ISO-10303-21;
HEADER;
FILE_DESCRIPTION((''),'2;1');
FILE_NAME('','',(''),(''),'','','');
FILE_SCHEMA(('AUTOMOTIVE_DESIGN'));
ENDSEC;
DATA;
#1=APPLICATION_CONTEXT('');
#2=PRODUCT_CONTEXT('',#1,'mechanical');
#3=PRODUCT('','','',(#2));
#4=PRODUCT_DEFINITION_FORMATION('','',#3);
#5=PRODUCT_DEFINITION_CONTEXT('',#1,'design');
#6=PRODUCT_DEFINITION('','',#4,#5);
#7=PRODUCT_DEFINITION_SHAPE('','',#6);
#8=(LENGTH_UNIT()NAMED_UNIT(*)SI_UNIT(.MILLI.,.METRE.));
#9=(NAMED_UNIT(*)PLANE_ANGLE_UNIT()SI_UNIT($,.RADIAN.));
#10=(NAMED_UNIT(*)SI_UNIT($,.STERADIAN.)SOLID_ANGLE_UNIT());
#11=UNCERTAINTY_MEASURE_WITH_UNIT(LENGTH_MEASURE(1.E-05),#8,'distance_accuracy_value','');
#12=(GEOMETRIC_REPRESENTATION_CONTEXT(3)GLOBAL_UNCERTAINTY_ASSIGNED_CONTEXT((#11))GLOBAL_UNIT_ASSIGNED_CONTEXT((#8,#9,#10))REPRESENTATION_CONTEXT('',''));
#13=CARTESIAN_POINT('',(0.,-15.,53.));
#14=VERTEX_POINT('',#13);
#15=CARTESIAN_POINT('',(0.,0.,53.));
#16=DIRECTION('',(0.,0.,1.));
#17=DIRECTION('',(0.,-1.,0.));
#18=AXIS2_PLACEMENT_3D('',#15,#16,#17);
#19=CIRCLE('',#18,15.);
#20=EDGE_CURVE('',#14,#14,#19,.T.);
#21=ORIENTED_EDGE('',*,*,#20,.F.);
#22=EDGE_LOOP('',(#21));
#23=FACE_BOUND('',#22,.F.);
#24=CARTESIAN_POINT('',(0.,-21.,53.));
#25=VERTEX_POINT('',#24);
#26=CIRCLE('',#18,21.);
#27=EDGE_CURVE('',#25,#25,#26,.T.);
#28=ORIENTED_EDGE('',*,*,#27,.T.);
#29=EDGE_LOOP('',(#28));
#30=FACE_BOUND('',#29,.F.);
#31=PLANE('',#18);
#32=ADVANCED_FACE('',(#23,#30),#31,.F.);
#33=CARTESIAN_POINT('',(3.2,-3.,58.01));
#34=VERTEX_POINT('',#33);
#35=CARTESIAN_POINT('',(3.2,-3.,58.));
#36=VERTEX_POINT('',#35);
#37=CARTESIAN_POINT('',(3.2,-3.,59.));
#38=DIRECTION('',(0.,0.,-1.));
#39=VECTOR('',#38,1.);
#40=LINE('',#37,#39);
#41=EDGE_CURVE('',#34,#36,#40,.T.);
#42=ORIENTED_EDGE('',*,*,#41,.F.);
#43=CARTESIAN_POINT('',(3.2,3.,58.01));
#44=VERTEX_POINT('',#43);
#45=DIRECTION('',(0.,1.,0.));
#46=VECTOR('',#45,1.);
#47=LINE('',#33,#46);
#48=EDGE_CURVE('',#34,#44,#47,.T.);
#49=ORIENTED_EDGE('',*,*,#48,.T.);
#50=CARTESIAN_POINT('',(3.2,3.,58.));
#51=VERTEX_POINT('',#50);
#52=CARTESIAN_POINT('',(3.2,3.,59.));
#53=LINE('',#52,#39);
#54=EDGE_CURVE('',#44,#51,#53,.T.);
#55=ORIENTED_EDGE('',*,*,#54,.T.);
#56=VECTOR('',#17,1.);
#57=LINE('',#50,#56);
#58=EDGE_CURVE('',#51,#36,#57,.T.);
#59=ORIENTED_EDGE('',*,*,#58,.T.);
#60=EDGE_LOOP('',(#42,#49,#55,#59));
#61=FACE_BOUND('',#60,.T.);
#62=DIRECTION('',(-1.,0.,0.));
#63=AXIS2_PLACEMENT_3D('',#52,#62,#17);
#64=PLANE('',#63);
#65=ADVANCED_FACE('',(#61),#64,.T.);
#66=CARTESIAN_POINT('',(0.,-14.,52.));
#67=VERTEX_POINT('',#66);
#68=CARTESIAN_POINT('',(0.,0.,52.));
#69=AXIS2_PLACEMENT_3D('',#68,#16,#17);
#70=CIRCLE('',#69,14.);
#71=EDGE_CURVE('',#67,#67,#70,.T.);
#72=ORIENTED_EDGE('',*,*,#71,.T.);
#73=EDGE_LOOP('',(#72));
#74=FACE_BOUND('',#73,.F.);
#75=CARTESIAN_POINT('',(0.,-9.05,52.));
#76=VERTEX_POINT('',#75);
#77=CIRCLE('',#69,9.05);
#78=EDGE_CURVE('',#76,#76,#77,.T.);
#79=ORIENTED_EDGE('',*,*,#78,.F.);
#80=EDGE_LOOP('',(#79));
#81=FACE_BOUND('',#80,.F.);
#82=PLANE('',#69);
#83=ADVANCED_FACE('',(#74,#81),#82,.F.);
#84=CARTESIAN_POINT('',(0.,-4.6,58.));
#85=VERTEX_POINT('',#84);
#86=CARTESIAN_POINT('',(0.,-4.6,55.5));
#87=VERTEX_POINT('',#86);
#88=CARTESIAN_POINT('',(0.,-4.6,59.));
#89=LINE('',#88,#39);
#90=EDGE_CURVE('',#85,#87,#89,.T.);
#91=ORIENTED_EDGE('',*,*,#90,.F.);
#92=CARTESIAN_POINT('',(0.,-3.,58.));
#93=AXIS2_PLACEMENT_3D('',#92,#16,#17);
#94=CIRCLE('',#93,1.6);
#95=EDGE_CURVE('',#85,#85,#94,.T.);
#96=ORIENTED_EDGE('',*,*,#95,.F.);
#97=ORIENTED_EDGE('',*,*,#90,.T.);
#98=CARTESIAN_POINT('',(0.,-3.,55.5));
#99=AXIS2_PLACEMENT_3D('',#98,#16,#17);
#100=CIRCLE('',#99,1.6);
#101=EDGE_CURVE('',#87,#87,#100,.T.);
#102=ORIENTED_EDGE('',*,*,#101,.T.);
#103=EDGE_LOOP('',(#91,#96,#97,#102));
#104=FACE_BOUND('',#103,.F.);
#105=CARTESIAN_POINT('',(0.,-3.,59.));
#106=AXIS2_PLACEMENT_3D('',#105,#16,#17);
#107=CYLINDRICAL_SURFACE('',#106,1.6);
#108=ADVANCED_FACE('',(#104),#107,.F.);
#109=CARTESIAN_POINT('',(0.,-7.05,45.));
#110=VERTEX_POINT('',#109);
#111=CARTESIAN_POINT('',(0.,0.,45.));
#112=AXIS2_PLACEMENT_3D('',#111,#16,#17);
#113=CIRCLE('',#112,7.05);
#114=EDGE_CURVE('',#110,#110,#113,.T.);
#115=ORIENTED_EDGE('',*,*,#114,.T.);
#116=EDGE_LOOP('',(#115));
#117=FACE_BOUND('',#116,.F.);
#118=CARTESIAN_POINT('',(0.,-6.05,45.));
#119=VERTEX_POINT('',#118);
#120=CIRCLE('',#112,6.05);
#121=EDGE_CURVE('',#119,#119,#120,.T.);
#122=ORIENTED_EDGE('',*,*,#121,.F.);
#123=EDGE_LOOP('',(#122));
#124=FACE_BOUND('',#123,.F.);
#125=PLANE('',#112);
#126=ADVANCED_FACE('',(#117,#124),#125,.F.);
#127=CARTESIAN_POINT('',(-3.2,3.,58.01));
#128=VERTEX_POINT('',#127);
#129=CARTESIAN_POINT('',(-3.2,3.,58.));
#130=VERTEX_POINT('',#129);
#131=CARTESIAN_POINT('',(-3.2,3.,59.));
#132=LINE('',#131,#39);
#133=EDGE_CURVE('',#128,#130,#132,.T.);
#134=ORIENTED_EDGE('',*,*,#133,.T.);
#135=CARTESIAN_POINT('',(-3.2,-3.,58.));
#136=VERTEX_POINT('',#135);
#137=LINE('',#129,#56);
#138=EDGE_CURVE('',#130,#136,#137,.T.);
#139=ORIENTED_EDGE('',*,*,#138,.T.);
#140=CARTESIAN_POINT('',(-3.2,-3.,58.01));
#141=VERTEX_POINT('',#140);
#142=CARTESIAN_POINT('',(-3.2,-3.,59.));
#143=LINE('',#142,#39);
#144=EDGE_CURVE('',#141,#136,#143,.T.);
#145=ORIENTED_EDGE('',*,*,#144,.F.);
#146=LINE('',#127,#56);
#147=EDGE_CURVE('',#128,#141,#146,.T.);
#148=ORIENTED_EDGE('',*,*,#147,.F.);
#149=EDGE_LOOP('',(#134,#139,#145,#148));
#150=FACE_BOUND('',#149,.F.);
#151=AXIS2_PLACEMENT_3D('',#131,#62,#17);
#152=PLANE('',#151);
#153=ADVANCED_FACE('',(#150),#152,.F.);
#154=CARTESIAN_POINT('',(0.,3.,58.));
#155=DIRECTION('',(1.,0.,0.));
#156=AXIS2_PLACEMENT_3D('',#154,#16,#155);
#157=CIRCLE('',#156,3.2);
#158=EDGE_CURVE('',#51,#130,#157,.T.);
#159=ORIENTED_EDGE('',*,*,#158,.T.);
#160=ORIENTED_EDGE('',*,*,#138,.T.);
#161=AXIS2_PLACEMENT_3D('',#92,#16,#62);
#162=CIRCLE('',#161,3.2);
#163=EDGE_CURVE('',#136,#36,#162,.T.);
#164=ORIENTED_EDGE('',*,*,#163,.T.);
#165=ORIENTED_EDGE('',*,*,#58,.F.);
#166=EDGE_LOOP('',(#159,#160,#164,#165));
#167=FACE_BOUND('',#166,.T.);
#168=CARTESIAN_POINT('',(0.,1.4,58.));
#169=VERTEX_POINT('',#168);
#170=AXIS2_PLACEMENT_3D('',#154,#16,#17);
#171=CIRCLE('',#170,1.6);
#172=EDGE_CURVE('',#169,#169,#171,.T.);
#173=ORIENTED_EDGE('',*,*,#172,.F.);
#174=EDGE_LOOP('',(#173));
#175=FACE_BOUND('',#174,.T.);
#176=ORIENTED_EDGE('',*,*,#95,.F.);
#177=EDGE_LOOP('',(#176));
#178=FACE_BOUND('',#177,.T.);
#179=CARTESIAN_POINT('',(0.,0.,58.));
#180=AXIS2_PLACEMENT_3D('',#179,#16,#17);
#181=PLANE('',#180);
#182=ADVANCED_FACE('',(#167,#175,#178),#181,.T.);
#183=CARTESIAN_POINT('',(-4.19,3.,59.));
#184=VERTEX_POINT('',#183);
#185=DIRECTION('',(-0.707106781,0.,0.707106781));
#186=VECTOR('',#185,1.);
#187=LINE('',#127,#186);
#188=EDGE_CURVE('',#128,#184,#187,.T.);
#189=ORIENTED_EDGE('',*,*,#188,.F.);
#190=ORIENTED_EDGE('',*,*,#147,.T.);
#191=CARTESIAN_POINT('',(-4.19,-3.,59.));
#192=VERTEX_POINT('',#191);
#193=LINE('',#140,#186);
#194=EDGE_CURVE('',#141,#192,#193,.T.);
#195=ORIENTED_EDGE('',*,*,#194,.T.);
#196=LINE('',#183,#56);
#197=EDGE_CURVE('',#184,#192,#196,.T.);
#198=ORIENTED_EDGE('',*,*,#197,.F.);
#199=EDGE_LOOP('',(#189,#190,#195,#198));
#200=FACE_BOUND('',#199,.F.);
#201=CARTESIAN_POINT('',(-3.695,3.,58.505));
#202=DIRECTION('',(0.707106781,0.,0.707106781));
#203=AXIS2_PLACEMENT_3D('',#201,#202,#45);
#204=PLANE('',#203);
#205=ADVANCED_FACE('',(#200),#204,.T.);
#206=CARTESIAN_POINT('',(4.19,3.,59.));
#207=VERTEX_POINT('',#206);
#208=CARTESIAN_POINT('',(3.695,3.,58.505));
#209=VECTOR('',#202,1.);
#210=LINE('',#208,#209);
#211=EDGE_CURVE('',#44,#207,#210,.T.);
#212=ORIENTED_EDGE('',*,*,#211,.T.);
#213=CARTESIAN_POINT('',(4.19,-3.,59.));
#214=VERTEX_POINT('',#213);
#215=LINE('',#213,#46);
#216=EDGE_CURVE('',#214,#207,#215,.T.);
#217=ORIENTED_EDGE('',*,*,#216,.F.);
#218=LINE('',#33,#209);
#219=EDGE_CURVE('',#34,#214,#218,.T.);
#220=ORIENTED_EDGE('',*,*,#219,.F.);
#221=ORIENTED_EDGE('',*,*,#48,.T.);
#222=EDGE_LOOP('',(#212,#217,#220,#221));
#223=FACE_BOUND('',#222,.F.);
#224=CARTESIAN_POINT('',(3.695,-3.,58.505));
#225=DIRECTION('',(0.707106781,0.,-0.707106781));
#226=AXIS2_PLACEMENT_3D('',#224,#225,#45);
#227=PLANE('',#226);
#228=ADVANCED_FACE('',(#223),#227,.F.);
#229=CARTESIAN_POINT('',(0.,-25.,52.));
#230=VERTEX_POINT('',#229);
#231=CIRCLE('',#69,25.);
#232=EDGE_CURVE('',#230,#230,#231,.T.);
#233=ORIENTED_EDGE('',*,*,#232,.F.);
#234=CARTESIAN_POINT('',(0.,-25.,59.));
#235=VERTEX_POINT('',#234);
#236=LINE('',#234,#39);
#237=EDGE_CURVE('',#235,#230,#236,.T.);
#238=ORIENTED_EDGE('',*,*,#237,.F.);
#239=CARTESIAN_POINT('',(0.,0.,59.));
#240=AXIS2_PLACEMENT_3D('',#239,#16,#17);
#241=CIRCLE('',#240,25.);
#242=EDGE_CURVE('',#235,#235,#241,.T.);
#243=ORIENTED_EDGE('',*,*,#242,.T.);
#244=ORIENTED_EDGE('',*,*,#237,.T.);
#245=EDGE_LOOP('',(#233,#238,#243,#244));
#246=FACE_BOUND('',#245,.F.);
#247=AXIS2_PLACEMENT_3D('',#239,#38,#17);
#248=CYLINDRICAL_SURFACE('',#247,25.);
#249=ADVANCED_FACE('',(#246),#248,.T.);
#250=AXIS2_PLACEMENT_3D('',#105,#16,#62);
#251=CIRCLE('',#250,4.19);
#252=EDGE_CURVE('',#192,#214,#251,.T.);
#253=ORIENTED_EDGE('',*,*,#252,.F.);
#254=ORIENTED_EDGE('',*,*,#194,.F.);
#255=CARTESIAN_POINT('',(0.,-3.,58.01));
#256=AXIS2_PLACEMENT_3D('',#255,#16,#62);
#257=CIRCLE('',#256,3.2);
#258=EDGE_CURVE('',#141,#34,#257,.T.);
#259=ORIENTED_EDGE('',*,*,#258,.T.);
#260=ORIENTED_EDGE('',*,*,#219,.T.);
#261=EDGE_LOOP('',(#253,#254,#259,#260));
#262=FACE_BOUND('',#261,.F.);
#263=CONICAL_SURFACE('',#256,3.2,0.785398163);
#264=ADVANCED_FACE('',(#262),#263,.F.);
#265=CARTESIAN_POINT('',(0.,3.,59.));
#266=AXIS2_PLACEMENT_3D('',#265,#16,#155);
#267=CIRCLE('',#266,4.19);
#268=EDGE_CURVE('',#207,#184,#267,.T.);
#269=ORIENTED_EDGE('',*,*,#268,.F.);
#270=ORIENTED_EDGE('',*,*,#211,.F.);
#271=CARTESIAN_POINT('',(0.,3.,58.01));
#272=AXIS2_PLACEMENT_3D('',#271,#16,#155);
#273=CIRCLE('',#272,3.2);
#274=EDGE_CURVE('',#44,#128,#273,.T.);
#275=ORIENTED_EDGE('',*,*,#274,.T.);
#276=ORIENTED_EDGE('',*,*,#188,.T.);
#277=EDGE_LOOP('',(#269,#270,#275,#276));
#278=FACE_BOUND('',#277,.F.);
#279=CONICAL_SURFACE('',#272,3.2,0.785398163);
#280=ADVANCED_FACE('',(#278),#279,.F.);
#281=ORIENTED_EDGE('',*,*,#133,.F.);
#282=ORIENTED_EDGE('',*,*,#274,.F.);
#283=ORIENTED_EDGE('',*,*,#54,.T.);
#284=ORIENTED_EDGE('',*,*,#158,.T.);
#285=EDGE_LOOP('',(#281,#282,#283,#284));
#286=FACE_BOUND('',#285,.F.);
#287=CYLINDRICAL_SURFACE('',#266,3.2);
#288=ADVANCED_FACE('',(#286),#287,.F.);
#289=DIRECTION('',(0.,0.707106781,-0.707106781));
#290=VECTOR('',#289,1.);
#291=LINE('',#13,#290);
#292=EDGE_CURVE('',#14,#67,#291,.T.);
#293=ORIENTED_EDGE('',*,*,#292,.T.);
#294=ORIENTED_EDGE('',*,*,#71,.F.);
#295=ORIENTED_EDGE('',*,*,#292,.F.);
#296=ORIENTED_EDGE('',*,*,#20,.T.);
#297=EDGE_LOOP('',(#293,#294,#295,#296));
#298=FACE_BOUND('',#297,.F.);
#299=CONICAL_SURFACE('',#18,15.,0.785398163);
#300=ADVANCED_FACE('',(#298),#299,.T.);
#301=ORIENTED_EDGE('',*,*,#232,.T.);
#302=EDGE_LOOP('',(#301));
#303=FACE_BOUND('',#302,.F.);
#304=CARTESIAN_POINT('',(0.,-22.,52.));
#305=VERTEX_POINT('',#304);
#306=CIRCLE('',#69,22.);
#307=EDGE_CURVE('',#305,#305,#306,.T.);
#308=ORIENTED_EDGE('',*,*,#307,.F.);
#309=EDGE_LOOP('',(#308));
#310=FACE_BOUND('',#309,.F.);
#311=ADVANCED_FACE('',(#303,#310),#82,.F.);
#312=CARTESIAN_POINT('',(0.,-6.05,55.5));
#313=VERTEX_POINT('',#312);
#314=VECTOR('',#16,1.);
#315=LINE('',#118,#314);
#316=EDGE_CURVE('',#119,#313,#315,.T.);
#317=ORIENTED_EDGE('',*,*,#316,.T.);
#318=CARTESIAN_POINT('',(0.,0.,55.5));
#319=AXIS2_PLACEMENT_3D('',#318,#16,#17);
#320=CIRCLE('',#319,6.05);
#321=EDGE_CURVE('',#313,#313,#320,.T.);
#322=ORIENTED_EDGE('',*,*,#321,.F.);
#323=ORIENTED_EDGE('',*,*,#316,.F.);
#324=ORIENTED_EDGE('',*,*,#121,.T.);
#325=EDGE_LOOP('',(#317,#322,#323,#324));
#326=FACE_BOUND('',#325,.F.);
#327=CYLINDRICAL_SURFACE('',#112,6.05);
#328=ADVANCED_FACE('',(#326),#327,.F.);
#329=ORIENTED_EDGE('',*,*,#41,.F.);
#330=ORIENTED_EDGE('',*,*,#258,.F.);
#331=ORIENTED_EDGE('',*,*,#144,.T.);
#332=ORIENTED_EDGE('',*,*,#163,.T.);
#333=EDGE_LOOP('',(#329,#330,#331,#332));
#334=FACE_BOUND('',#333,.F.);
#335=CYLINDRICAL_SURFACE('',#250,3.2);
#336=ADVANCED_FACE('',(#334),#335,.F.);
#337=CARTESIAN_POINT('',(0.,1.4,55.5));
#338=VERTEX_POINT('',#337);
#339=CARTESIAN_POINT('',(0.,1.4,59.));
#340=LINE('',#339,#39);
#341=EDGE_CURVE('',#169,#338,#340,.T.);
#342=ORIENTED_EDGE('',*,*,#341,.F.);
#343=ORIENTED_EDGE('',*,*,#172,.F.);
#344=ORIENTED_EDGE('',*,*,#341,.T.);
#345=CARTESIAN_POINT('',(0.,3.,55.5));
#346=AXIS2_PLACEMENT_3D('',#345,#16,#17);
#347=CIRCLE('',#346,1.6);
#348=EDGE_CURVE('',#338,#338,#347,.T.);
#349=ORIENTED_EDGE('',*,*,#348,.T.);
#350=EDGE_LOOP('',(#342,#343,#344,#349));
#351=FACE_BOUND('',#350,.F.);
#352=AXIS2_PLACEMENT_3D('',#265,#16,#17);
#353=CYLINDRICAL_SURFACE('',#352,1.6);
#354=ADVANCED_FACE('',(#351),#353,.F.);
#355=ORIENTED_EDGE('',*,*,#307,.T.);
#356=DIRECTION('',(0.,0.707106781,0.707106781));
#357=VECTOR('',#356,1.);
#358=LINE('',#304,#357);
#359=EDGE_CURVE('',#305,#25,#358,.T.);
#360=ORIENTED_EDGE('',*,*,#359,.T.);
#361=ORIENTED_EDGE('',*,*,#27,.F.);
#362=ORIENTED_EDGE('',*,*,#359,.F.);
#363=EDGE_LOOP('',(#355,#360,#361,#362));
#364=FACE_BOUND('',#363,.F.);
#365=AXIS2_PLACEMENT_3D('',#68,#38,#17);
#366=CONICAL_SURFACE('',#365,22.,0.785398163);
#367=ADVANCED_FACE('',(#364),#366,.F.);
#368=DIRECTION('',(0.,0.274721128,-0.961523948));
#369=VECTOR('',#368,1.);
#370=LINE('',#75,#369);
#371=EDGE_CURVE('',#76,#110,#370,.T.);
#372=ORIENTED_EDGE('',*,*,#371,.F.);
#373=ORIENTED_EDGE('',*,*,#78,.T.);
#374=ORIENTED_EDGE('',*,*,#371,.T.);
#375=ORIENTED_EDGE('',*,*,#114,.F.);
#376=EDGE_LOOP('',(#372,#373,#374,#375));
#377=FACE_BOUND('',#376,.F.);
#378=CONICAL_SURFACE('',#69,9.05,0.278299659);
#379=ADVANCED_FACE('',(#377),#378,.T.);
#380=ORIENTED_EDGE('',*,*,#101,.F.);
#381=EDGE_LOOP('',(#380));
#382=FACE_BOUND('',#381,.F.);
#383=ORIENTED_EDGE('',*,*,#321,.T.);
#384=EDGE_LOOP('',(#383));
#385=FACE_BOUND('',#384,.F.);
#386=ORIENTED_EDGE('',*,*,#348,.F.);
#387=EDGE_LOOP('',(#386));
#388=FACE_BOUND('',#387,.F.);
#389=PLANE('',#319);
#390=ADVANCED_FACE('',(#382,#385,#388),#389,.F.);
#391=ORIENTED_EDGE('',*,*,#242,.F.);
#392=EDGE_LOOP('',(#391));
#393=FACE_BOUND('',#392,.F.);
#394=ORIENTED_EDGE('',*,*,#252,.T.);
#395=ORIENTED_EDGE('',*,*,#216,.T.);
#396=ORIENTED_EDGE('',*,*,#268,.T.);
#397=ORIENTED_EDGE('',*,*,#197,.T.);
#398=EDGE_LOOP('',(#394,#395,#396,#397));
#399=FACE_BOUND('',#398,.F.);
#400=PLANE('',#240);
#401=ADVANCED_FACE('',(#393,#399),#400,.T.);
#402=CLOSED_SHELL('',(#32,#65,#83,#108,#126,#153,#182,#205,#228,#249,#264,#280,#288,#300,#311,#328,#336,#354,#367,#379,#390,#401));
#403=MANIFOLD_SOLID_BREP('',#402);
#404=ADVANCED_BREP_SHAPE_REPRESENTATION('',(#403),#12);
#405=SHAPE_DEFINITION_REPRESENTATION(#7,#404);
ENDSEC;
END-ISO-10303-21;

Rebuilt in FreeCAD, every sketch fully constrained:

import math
import FreeCAD as App
import Part
import Sketcher
from FreeCAD import Vector


def edges_at(feature, points):
    """Names of the edges that pass closest to the given points."""
    edges = feature.Shape.Edges
    near = lambda p: min(range(len(edges)), key=lambda i: edges[i].distToShape(Part.Vertex(*p))[0])
    return sorted({f"Edge{near(p) + 1}" for p in points})


def add_polygon(sketch, points):
    """Adds a closed chain of lines whose ends are joined by coincident constraints."""
    first, n = sketch.GeometryCount, len(points)
    for a, b in zip(points, points[1:] + points[:1]):
        sketch.addGeometry(Part.LineSegment(App.Vector(*a, 0), App.Vector(*b, 0)), False)
    for i in range(n):
        sketch.addConstraint(Sketcher.Constraint("Coincident", first + i, 2, first + (i + 1) % n, 1))

doc = App.newDocument("Part")
params = doc.addObject("Spreadsheet::Sheet", "Params")
for row, (alias, value) in enumerate([
    ("sketch1_width", "25 mm"),
    ("sketch1_width2", "3 mm"),
    ("sketch1_width3", "6 mm"),
    ("sketch1_width4", "1 mm"),
    ("sketch1_height", "7 mm"),
    ("revolution_angle", "360 deg"),
    ("sketch2_diameter", "3.2 mm"),
    ("sketch3_radius", "3.2 mm"),
    ("sketch3_height", "6 mm"),
    ("pocket2_length", "1 mm"),
    ("chamfer_size", "0.99 mm"),
], start=1):
    params.set(f"A{row}", alias)
    params.set(f"B{row}", "=" + value)
    params.setAlias(f"B{row}", alias)

body = doc.addObject("PartDesign::Body", "Body")

sketch1 = body.newObject("Sketcher::SketchObject", "Sketch")
sketch1.AttachmentSupport = (doc.getObject("YZ_Plane"), [""])
sketch1.MapMode = "FlatFace"
add_polygon(sketch1, [(-6, 0), (-6, 10.5), (0, 10.5), (0, 14), (-25, 14), (-25, 7), (-22, 7), (-21, 8), (-15, 8), (-14, 7), (-9.1, 7), (-7, 0)])
sketch1.addConstraint(Sketcher.Constraint("Vertical", 0))
sketch1.addConstraint(Sketcher.Constraint("Horizontal", 1))
sketch1.addConstraint(Sketcher.Constraint("Vertical", 2))
sketch1.addConstraint(Sketcher.Constraint("Horizontal", 3))
sketch1.addConstraint(Sketcher.Constraint("Vertical", 4))
sketch1.addConstraint(Sketcher.Constraint("Horizontal", 5))
sketch1.addConstraint(Sketcher.Constraint("Horizontal", 7))
sketch1.addConstraint(Sketcher.Constraint("Horizontal", 9))
sketch1.addConstraint(Sketcher.Constraint("Horizontal", 11))
sketch1.addConstraint(Sketcher.Constraint("PointOnObject", 1, 2, -2))
sketch1.addConstraint(Sketcher.Constraint("PointOnObject", 10, 2, -1))
sketch1.addConstraint(Sketcher.Constraint("Perpendicular", 6, 8))
sketch1.addConstraint(Sketcher.Constraint("Horizontal", 5, 2, 8, 2))
sketch1.addConstraint(Sketcher.Constraint("Equal", 6, 8))
sketch1.addConstraint(Sketcher.Constraint("DistanceX", 3, 2, 3, 1, 25.0))
sketch1.addConstraint(Sketcher.Constraint("DistanceX", 5, 1, 5, 2, 3.0))
sketch1.addConstraint(Sketcher.Constraint("DistanceX", 7, 1, 7, 2, 6.0))
sketch1.addConstraint(Sketcher.Constraint("DistanceX", 11, 1, 11, 2, 1.0))
sketch1.addConstraint(Sketcher.Constraint("DistanceY", 4, 2, 4, 1, 7.0))
sketch1.addConstraint(Sketcher.Constraint("DistanceY", 0, 1, 0, 2, 10.5))
sketch1.addConstraint(Sketcher.Constraint("DistanceY", 2, 1, 2, 2, 3.5))
sketch1.addConstraint(Sketcher.Constraint("DistanceX", 6, 2, -1, 1, 21.0))
sketch1.addConstraint(Sketcher.Constraint("DistanceX", 9, 2, 0, 2, 3.0))
sketch1.addConstraint(Sketcher.Constraint("DistanceX", 1, 1, 1, 2, 6.05))
sketch1.setExpression("Constraints[26]", "Params.sketch1_width")
sketch1.setExpression("Constraints[27]", "Params.sketch1_width2")
sketch1.setExpression("Constraints[28]", "Params.sketch1_width3")
sketch1.setExpression("Constraints[29]", "Params.sketch1_width4")
sketch1.setExpression("Constraints[30]", "Params.sketch1_height")
revolution = body.newObject("PartDesign::Revolution", "Revolution")
revolution.Profile = sketch1
revolution.ReferenceAxis = (sketch1, ["V_Axis"])
revolution.setExpression("Angle", "Params.revolution_angle")

sketch2 = body.newObject("Sketcher::SketchObject", "Sketch001")
sketch2.AttachmentSupport = (doc.getObject("XY_Plane"), [""])
sketch2.MapMode = "FlatFace"
sketch2.AttachmentOffset = App.Placement(Vector(0, 0, 14), App.Rotation())
sketch2.addGeometry(Part.Circle(Vector(0, 3, 0), Vector(0, 0, 1), 1.6), False)
sketch2.addGeometry(Part.Circle(Vector(0, -3, 0), Vector(0, 0, 1), 1.6), False)
sketch2.addConstraint(Sketcher.Constraint("Equal", 0, 1))
sketch2.addConstraint(Sketcher.Constraint("Symmetric", 0, 3, 1, 3, -1, 1))
sketch2.addConstraint(Sketcher.Constraint("PointOnObject", 0, 3, -2))
sketch2.addConstraint(Sketcher.Constraint("Diameter", 0, 3.2))
sketch2.addConstraint(Sketcher.Constraint("DistanceY", -1, 1, 0, 3, 3.0))
sketch2.setExpression("Constraints[3]", "Params.sketch2_diameter")
pocket1 = body.newObject("PartDesign::Pocket", "Pocket")
pocket1.Profile = sketch2
pocket1.Type = "ThroughAll"

sketch3 = body.newObject("Sketcher::SketchObject", "Sketch002")
sketch3.AttachmentSupport = (doc.getObject("XY_Plane"), [""])
sketch3.MapMode = "FlatFace"
sketch3.AttachmentOffset = App.Placement(Vector(0, 0, 14), App.Rotation())
sketch3.addGeometry(Part.ArcOfCircle(Part.Circle(Vector(0, 3, 0), Vector(0, 0, 1), 3.2), math.radians(0), math.radians(180)), False)
sketch3.addGeometry(Part.LineSegment(Vector(-3.2, 3, 0), Vector(-3.2, -3, 0)), False)
sketch3.addGeometry(Part.ArcOfCircle(Part.Circle(Vector(0, -3, 0), Vector(0, 0, 1), 3.2), math.radians(180), math.radians(360)), False)
sketch3.addGeometry(Part.LineSegment(Vector(3.2, -3, 0), Vector(3.2, 3, 0)), False)
sketch3.addConstraint(Sketcher.Constraint("Tangent", 0, 2, 1, 1))
sketch3.addConstraint(Sketcher.Constraint("Tangent", 1, 2, 2, 1))
sketch3.addConstraint(Sketcher.Constraint("Tangent", 2, 2, 3, 1))
sketch3.addConstraint(Sketcher.Constraint("Tangent", 3, 2, 0, 1))
sketch3.addConstraint(Sketcher.Constraint("Vertical", 1))
sketch3.addConstraint(Sketcher.Constraint("Vertical", 3))
sketch3.addConstraint(Sketcher.Constraint("Symmetric", 0, 3, 2, 3, -1, 1))
sketch3.addConstraint(Sketcher.Constraint("Radius", 0, 3.2))
sketch3.addConstraint(Sketcher.Constraint("DistanceY", 1, 2, 1, 1, 6.0))
sketch3.setExpression("Constraints[7]", "Params.sketch3_radius")
sketch3.setExpression("Constraints[8]", "Params.sketch3_height")
pocket2 = body.newObject("PartDesign::Pocket", "Pocket001")
pocket2.Profile = sketch3
pocket2.setExpression("Length", "Params.pocket2_length")
doc.recompute()

chamfer = body.newObject("PartDesign::Chamfer", "Chamfer")
chamfer.Base = (pocket2, edges_at(pocket2, [
    (0, -6.2, 14),
    (-3.2, 0, 14),
    (0, 6.2, 14),
    (3.2, 0, 14),
]))
chamfer.setExpression("Size", "Params.chamfer_size")
body2 = doc.addObject("PartDesign::Body", "Body001")
doc.recompute()

body.Placement = App.Placement(Vector(0, 0, 45), App.Rotation(Vector(0, 0, 1), 0))
boolean = body2.newObject("PartDesign::Boolean", "Boolean")
boolean.Type = "Fuse"
boolean.addObjects([body])

doc.recompute()
